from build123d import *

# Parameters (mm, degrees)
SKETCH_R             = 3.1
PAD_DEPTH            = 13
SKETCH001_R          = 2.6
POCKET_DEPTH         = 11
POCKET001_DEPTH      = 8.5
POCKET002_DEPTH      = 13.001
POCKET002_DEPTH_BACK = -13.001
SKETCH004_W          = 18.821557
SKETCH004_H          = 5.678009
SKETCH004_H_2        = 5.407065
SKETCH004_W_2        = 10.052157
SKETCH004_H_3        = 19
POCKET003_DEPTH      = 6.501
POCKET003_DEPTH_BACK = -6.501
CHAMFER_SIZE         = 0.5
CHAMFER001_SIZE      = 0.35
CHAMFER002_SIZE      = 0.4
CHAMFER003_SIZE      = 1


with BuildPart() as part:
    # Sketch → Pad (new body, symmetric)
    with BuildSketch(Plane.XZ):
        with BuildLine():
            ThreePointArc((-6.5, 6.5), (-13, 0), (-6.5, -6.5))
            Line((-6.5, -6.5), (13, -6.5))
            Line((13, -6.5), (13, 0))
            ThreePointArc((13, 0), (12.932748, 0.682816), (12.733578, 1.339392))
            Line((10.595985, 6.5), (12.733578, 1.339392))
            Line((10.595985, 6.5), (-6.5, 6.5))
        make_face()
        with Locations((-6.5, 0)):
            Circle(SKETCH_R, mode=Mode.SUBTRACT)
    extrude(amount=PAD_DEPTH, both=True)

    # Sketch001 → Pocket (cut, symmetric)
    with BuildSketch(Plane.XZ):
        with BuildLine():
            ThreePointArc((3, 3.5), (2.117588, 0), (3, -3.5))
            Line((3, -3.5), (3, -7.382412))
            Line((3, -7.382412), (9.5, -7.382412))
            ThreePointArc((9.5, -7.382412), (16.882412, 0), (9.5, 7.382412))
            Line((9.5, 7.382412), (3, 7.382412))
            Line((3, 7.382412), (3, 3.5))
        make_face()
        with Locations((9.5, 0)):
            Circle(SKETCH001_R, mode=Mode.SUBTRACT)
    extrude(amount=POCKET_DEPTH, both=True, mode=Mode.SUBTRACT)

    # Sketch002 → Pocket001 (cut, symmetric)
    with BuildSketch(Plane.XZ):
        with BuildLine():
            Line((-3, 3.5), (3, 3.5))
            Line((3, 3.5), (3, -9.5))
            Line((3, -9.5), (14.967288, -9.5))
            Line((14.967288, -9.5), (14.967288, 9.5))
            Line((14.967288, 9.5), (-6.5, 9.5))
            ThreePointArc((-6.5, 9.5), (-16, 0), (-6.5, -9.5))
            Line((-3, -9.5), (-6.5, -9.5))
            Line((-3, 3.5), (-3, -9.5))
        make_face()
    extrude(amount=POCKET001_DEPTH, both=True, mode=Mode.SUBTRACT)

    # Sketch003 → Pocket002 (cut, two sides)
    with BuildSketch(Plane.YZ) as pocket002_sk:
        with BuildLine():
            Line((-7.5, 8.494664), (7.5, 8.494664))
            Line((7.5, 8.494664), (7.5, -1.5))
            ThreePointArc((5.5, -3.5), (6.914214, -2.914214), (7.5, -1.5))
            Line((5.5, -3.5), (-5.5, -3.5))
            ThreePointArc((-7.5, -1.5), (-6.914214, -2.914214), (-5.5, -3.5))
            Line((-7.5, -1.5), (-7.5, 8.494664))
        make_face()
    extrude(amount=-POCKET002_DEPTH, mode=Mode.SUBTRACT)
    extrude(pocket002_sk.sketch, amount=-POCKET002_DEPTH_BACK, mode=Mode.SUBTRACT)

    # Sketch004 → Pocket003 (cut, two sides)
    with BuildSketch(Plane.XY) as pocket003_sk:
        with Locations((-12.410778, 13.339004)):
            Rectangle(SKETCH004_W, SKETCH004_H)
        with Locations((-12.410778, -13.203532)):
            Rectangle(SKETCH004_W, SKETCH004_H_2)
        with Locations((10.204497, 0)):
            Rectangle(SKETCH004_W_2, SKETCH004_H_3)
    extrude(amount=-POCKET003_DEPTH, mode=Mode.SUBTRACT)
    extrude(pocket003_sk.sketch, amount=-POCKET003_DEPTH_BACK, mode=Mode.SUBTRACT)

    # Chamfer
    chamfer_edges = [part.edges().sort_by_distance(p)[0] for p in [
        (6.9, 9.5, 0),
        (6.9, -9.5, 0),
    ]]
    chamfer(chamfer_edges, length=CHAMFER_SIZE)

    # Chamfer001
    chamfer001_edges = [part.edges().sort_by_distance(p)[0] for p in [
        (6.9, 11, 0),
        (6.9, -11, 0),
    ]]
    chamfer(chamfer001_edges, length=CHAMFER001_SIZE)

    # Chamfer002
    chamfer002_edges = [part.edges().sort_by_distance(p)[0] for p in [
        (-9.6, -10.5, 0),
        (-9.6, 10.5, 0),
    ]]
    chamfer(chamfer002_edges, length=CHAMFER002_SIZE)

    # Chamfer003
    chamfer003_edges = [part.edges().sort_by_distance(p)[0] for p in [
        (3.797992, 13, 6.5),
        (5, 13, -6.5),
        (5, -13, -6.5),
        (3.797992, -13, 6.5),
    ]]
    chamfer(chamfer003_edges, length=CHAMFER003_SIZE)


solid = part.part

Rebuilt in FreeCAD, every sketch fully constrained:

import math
import FreeCAD as App
import Part
import Sketcher
from FreeCAD import Vector
Q = App.Units.Quantity


def edges_at(feature, points):
    """Names of the edges that pass closest to the given points."""
    edges = feature.Shape.Edges
    near = lambda p: min(range(len(edges)), key=lambda i: edges[i].distToShape(Part.Vertex(*p))[0])
    return sorted({f"Edge{near(p) + 1}" for p in points})


def add_polygon(sketch, points):
    """Adds a closed chain of lines whose ends are joined by coincident constraints."""
    first, n = sketch.GeometryCount, len(points)
    for a, b in zip(points, points[1:] + points[:1]):
        sketch.addGeometry(Part.LineSegment(App.Vector(*a, 0), App.Vector(*b, 0)), False)
    for i in range(n):
        sketch.addConstraint(Sketcher.Constraint("Coincident", first + i, 2, first + (i + 1) % n, 1))

doc = App.newDocument("Part")
params = doc.addObject("Spreadsheet::Sheet", "Params")
for row, (alias, value) in enumerate([
    ("sketch1_diameter", "6.2 mm"),
    ("sketch1_radius", "6.5 mm"),
    ("sketch1_width", "19.5 mm"),
    ("pad1_length", "26 mm"),
    ("sketch2_diameter", "5.2 mm"),
    ("sketch2_width", "6.5 mm"),
    ("pocket1_length", "22 mm"),
    ("sketch3_radius", "9.5 mm"),
    ("sketch3_width", "6 mm"),
    ("sketch3_height", "13 mm"),
    ("sketch3_width2", "3.5 mm"),
    ("pocket2_length", "17 mm"),
    ("sketch4_radius", "1.999999 mm"),
    ("sketch4_width", "15 mm"),
    ("sketch5_height", "19 mm"),
    ("chamfer_size", "0.5 mm"),
    ("chamfer2_size", "0.35 mm"),
    ("chamfer3_size", "0.4 mm"),
    ("chamfer4_size", "1 mm"),
], start=1):
    params.set(f"A{row}", alias)
    params.set(f"B{row}", "=" + value)
    params.setAlias(f"B{row}", alias)

body = doc.addObject("PartDesign::Body", "Body")

sketch1 = body.newObject("Sketcher::SketchObject", "Sketch")
sketch1.AttachmentSupport = (doc.getObject("XZ_Plane"), [""])
sketch1.MapMode = "FlatFace"
sketch1.addGeometry([
    Part.ArcOfCircle(Part.Circle(Vector(-6.5, 0, 0), Vector(0, 0, 1), 6.5), math.radians(90), math.radians(270)),
    Part.LineSegment(Vector(-6.5, -6.5, 0), Vector(13, -6.5, 0)),
    Part.LineSegment(Vector(13, -6.5, 0), Vector(13, 0, 0)),
    Part.ArcOfCircle(Part.Circle(Vector(9.5, 0, 0), Vector(0, 0, 1), 3.5), math.radians(0), math.radians(22)),
    Part.LineSegment(Vector(12.7, 1.3, 0), Vector(10.6, 6.5, 0)),
    Part.LineSegment(Vector(10.6, 6.5, 0), Vector(-6.5, 6.5, 0)),
    Part.Circle(Vector(-6.5, 0, 0), Vector(0, 0, 1), 3.1),
], False)
sketch1.addConstraint([
    Sketcher.Constraint("Tangent", 0, 2, 1, 1),
    Sketcher.Constraint("Coincident", 1, 2, 2, 1),
    Sketcher.Constraint("Tangent", 2, 2, 3, 1),
    Sketcher.Constraint("Tangent", 3, 2, 4, 1),
    Sketcher.Constraint("Coincident", 4, 2, 5, 1),
    Sketcher.Constraint("Tangent", 5, 2, 0, 1),
    Sketcher.Constraint("Horizontal", 1),
    Sketcher.Constraint("Vertical", 2),
    Sketcher.Constraint("Horizontal", 5),
    Sketcher.Constraint("Coincident", 6, 3, 0, 3),
    Sketcher.Constraint("PointOnObject", 0, 3, -1),
    Sketcher.Constraint("PointOnObject", 2, 2, -1),
    Sketcher.Constraint("Diameter", 6, 6.2),
    Sketcher.Constraint("Radius", 0, 6.5),
    Sketcher.Constraint("DistanceX", 1, 1, 1, 2, 19.5),
    Sketcher.Constraint("DistanceX", -1, 1, 1, 2, 13.0),
    Sketcher.Constraint("Angle", 4, Q("112.499992 deg")),
    Sketcher.Constraint("Radius", 3, 3.500016),
])
sketch1.setExpression("Constraints[12]", "Params.sketch1_diameter")
sketch1.setExpression("Constraints[13]", "Params.sketch1_radius")
sketch1.setExpression("Constraints[14]", "Params.sketch1_width")
pad1 = body.newObject("PartDesign::Pad", "Pad")
pad1.Profile = sketch1
pad1.setExpression("Length", "Params.pad1_length")
pad1.Midplane = True

sketch2 = body.newObject("Sketcher::SketchObject", "Sketch001")
sketch2.AttachmentSupport = (doc.getObject("XZ_Plane"), [""])
sketch2.MapMode = "FlatFace"
sketch2.addGeometry([
    Part.ArcOfCircle(Part.Circle(Vector(9.5, 0, 0), Vector(0, 0, 1), 7.4), math.radians(152), math.radians(208)),
    Part.LineSegment(Vector(3, -3.5, 0), Vector(3, -7.4, 0)),
    Part.LineSegment(Vector(3, -7.4, 0), Vector(9.5, -7.4, 0)),
    Part.ArcOfCircle(Part.Circle(Vector(9.5, 0, 0), Vector(0, 0, 1), 7.4), math.radians(-90), math.radians(90)),
    Part.LineSegment(Vector(9.5, 7.4, 0), Vector(3, 7.4, 0)),
    Part.LineSegment(Vector(3, 7.4, 0), Vector(3, 3.5, 0)),
    Part.Circle(Vector(9.5, 0, 0), Vector(0, 0, 1), 2.6),
], False)
sketch2.addConstraint([
    Sketcher.Constraint("Coincident", 0, 2, 1, 1),
    Sketcher.Constraint("Coincident", 1, 2, 2, 1),
    Sketcher.Constraint("Tangent", 2, 2, 3, 1),
    Sketcher.Constraint("Tangent", 3, 2, 4, 1),
    Sketcher.Constraint("Coincident", 4, 2, 5, 1),
    Sketcher.Constraint("Coincident", 5, 2, 0, 1),
    Sketcher.Constraint("Vertical", 1),
    Sketcher.Constraint("Horizontal", 2),
    Sketcher.Constraint("Horizontal", 4),
    Sketcher.Constraint("Vertical", 5),
    Sketcher.Constraint("Coincident", 3, 3, 0, 3),
    Sketcher.Constraint("Coincident", 6, 3, 0, 3),
    Sketcher.Constraint("Symmetric", 1, 2, 4, 2, -1),
    Sketcher.Constraint("Diameter", 6, 5.2),
    Sketcher.Constraint("DistanceX", 2, 1, 2, 2, 6.5),
    Sketcher.Constraint("DistanceX", -1, 1, 0, 2, 3.0),
    Sketcher.Constraint("DistanceY", 0, 2, 5, 2, 7.0),
    Sketcher.Constraint("Radius", 3, 7.382412),
])
sketch2.setExpression("Constraints[13]", "Params.sketch2_diameter")
sketch2.setExpression("Constraints[14]", "Params.sketch2_width")
pocket1 = body.newObject("PartDesign::Pocket", "Pocket")
pocket1.Profile = sketch2
pocket1.setExpression("Length", "Params.pocket1_length")
pocket1.Midplane = True

sketch3 = body.newObject("Sketcher::SketchObject", "Sketch002")
sketch3.AttachmentSupport = (doc.getObject("XZ_Plane"), [""])
sketch3.MapMode = "FlatFace"
sketch3.addGeometry([
    Part.LineSegment(Vector(-3, 3.5, 0), Vector(3, 3.5, 0)),
    Part.LineSegment(Vector(3, 3.5, 0), Vector(3, -9.5, 0)),
    Part.LineSegment(Vector(3, -9.5, 0), Vector(15, -9.5, 0)),
    Part.LineSegment(Vector(15, -9.5, 0), Vector(15, 9.5, 0)),
    Part.LineSegment(Vector(15, 9.5, 0), Vector(-6.5, 9.5, 0)),
    Part.ArcOfCircle(Part.Circle(Vector(-6.5, 0, 0), Vector(0, 0, 1), 9.5), math.radians(90), math.radians(270)),
    Part.LineSegment(Vector(-6.5, -9.5, 0), Vector(-3, -9.5, 0)),
    Part.LineSegment(Vector(-3, -9.5, 0), Vector(-3, 3.5, 0)),
], False)
sketch3.addConstraint([
    Sketcher.Constraint("Coincident", 0, 2, 1, 1),
    Sketcher.Constraint("Coincident", 1, 2, 2, 1),
    Sketcher.Constraint("Coincident", 2, 2, 3, 1),
    Sketcher.Constraint("Coincident", 3, 2, 4, 1),
    Sketcher.Constraint("Tangent", 4, 2, 5, 1),
    Sketcher.Constraint("Tangent", 5, 2, 6, 1),
    Sketcher.Constraint("Coincident", 6, 2, 7, 1),
    Sketcher.Constraint("Coincident", 7, 2, 0, 1),
    Sketcher.Constraint("Horizontal", 0),
    Sketcher.Constraint("Vertical", 1),
    Sketcher.Constraint("Horizontal", 2),
    Sketcher.Constraint("Vertical", 3),
    Sketcher.Constraint("Horizontal", 4),
    Sketcher.Constraint("Horizontal", 6),
    Sketcher.Constraint("Vertical", 7),
    Sketcher.Constraint("Symmetric", 1, 2, 6, 2, -2),
    Sketcher.Constraint("PointOnObject", 5, 3, -1),
    Sketcher.Constraint("Radius", 5, 9.5),
    Sketcher.Constraint("DistanceX", 0, 1, 0, 2, 6.0),
    Sketcher.Constraint("DistanceY", 1, 2, 1, 1, 13.0),
    Sketcher.Constraint("DistanceX", 6, 1, 6, 2, 3.5),
    Sketcher.Constraint("DistanceX", 4, 2, 4, 1, 21.467288),
])
sketch3.setExpression("Constraints[17]", "Params.sketch3_radius")
sketch3.setExpression("Constraints[18]", "Params.sketch3_width")
sketch3.setExpression("Constraints[19]", "Params.sketch3_height")
sketch3.setExpression("Constraints[20]", "Params.sketch3_width2")
pocket2 = body.newObject("PartDesign::Pocket", "Pocket001")
pocket2.Profile = sketch3
pocket2.setExpression("Length", "Params.pocket2_length")
pocket2.Midplane = True

sketch4 = body.newObject("Sketcher::SketchObject", "Sketch003")
sketch4.AttachmentSupport = (doc.getObject("YZ_Plane"), [""])
sketch4.MapMode = "FlatFace"
sketch4.addGeometry([
    Part.LineSegment(Vector(7.5, 8.5, 0), Vector(-7.5, 8.5, 0)),
    Part.LineSegment(Vector(-7.5, 8.5, 0), Vector(-7.5, -1.5, 0)),
    Part.ArcOfCircle(Part.Circle(Vector(-5.5, -1.5, 0), Vector(0, 0, 1), 2), math.radians(180), math.radians(270)),
    Part.LineSegment(Vector(-5.5, -3.5, 0), Vector(5.5, -3.5, 0)),
    Part.ArcOfCircle(Part.Circle(Vector(5.5, -1.5, 0), Vector(0, 0, 1), 2), math.radians(-90), math.radians(0)),
    Part.LineSegment(Vector(7.5, -1.5, 0), Vector(7.5, 8.5, 0)),
], False)
sketch4.addConstraint([
    Sketcher.Constraint("Coincident", 0, 2, 1, 1),
    Sketcher.Constraint("Tangent", 1, 2, 2, 1),
    Sketcher.Constraint("Tangent", 2, 2, 3, 1),
    Sketcher.Constraint("Tangent", 3, 2, 4, 1),
    Sketcher.Constraint("Tangent", 4, 2, 5, 1),
    Sketcher.Constraint("Coincident", 5, 2, 0, 1),
    Sketcher.Constraint("Horizontal", 0),
    Sketcher.Constraint("Vertical", 1),
    Sketcher.Constraint("Horizontal", 3),
    Sketcher.Constraint("Vertical", 5),
    Sketcher.Constraint("Equal", 2, 4),
    Sketcher.Constraint("Radius", 2, 1.999999),
    Sketcher.Constraint("DistanceX", 0, 2, 0, 1, 15.0),
    Sketcher.Constraint("DistanceX", 2, 3, -1, 1, 5.500001),
    Sketcher.Constraint("DistanceY", 2, 3, -1, 1, 1.500001),
    Sketcher.Constraint("DistanceY", 1, 2, 1, 1, 9.994664),
])
sketch4.setExpression("Constraints[11]", "Params.sketch4_radius")
sketch4.setExpression("Constraints[12]", "Params.sketch4_width")
pocket3 = body.newObject("PartDesign::Pocket", "Pocket002")
pocket3.Profile = sketch4
pocket3.Type = "ThroughAll"
pocket3.Midplane = True

sketch5 = body.newObject("Sketcher::SketchObject", "Sketch004")
sketch5.AttachmentSupport = (doc.getObject("XY_Plane"), [""])
sketch5.MapMode = "FlatFace"
add_polygon(sketch5, [(-22, 16), (-22, 10), (-3, 10), (-3, 16)])
add_polygon(sketch5, [(-22, -10), (-22, -16), (-3, -16), (-3, -10)])
add_polygon(sketch5, [(5, 10), (5, -10), (15, -10), (15, 10)])
sketch5.addConstraint([
    Sketcher.Constraint("Vertical", 0),
    Sketcher.Constraint("Horizontal", 1),
    Sketcher.Constraint("Vertical", 2),
    Sketcher.Constraint("Horizontal", 3),
    Sketcher.Constraint("Vertical", 4),
    Sketcher.Constraint("Horizontal", 5),
    Sketcher.Constraint("Vertical", 6),
    Sketcher.Constraint("Horizontal", 7),
    Sketcher.Constraint("Vertical", 8),
    Sketcher.Constraint("Horizontal", 9),
    Sketcher.Constraint("Vertical", 10),
    Sketcher.Constraint("Horizontal", 11),
    Sketcher.Constraint("Symmetric", 1, 2, 6, 2, -1),
    Sketcher.Constraint("Vertical", 3, 2, 4, 2),
    Sketcher.Constraint("DistanceY", 8, 2, 8, 1, 19.0),
    Sketcher.Constraint("DistanceX", 1, 2, -1, 1, 2.999999),
    Sketcher.Constraint("DistanceY", 6, 2, 1, 2, 20.999999),
    Sketcher.Constraint("DistanceY", 6, 2, 8, 2, 0.999999),
    Sketcher.Constraint("DistanceY", 0, 2, 0, 1, 5.678009),
    Sketcher.Constraint("DistanceX", 1, 1, 1, 2, 18.821557),
    Sketcher.Constraint("DistanceX", 9, 1, 9, 2, 10.052157),
    Sketcher.Constraint("DistanceY", 4, 2, 4, 1, 5.407065),
    Sketcher.Constraint("DistanceX", -1, 1, 8, 2, 5.178419),
])
sketch5.setExpression("Constraints[26]", "Params.sketch5_height")
pocket4 = body.newObject("PartDesign::Pocket", "Pocket003")
pocket4.Profile = sketch5
pocket4.Type = "ThroughAll"
pocket4.Midplane = True
doc.recompute()

chamfer = body.newObject("PartDesign::Chamfer", "Chamfer")
chamfer.Base = (pocket4, edges_at(pocket4, [(6.9, 9.5, 0), (6.9, -9.5, 0)]))
chamfer.setExpression("Size", "Params.chamfer_size")
doc.recompute()

chamfer2 = body.newObject("PartDesign::Chamfer", "Chamfer001")
chamfer2.Base = (chamfer, edges_at(chamfer, [(6.9, 11, 0), (6.9, -11, 0)]))
chamfer2.setExpression("Size", "Params.chamfer2_size")
doc.recompute()

chamfer3 = body.newObject("PartDesign::Chamfer", "Chamfer002")
chamfer3.Base = (chamfer2, edges_at(chamfer2, [(-9.6, -10.5, 0), (-9.6, 10.5, 0)]))
chamfer3.setExpression("Size", "Params.chamfer3_size")
doc.recompute()

chamfer4 = body.newObject("PartDesign::Chamfer", "Chamfer003")
chamfer4.Base = (chamfer3, edges_at(chamfer3, [
    (3.798, 13, 6.5),
    (5, 13, -6.5),
    (5, -13, -6.5),
    (3.798, -13, 6.5),
]))
chamfer4.setExpression("Size", "Params.chamfer4_size")

doc.recompute()
